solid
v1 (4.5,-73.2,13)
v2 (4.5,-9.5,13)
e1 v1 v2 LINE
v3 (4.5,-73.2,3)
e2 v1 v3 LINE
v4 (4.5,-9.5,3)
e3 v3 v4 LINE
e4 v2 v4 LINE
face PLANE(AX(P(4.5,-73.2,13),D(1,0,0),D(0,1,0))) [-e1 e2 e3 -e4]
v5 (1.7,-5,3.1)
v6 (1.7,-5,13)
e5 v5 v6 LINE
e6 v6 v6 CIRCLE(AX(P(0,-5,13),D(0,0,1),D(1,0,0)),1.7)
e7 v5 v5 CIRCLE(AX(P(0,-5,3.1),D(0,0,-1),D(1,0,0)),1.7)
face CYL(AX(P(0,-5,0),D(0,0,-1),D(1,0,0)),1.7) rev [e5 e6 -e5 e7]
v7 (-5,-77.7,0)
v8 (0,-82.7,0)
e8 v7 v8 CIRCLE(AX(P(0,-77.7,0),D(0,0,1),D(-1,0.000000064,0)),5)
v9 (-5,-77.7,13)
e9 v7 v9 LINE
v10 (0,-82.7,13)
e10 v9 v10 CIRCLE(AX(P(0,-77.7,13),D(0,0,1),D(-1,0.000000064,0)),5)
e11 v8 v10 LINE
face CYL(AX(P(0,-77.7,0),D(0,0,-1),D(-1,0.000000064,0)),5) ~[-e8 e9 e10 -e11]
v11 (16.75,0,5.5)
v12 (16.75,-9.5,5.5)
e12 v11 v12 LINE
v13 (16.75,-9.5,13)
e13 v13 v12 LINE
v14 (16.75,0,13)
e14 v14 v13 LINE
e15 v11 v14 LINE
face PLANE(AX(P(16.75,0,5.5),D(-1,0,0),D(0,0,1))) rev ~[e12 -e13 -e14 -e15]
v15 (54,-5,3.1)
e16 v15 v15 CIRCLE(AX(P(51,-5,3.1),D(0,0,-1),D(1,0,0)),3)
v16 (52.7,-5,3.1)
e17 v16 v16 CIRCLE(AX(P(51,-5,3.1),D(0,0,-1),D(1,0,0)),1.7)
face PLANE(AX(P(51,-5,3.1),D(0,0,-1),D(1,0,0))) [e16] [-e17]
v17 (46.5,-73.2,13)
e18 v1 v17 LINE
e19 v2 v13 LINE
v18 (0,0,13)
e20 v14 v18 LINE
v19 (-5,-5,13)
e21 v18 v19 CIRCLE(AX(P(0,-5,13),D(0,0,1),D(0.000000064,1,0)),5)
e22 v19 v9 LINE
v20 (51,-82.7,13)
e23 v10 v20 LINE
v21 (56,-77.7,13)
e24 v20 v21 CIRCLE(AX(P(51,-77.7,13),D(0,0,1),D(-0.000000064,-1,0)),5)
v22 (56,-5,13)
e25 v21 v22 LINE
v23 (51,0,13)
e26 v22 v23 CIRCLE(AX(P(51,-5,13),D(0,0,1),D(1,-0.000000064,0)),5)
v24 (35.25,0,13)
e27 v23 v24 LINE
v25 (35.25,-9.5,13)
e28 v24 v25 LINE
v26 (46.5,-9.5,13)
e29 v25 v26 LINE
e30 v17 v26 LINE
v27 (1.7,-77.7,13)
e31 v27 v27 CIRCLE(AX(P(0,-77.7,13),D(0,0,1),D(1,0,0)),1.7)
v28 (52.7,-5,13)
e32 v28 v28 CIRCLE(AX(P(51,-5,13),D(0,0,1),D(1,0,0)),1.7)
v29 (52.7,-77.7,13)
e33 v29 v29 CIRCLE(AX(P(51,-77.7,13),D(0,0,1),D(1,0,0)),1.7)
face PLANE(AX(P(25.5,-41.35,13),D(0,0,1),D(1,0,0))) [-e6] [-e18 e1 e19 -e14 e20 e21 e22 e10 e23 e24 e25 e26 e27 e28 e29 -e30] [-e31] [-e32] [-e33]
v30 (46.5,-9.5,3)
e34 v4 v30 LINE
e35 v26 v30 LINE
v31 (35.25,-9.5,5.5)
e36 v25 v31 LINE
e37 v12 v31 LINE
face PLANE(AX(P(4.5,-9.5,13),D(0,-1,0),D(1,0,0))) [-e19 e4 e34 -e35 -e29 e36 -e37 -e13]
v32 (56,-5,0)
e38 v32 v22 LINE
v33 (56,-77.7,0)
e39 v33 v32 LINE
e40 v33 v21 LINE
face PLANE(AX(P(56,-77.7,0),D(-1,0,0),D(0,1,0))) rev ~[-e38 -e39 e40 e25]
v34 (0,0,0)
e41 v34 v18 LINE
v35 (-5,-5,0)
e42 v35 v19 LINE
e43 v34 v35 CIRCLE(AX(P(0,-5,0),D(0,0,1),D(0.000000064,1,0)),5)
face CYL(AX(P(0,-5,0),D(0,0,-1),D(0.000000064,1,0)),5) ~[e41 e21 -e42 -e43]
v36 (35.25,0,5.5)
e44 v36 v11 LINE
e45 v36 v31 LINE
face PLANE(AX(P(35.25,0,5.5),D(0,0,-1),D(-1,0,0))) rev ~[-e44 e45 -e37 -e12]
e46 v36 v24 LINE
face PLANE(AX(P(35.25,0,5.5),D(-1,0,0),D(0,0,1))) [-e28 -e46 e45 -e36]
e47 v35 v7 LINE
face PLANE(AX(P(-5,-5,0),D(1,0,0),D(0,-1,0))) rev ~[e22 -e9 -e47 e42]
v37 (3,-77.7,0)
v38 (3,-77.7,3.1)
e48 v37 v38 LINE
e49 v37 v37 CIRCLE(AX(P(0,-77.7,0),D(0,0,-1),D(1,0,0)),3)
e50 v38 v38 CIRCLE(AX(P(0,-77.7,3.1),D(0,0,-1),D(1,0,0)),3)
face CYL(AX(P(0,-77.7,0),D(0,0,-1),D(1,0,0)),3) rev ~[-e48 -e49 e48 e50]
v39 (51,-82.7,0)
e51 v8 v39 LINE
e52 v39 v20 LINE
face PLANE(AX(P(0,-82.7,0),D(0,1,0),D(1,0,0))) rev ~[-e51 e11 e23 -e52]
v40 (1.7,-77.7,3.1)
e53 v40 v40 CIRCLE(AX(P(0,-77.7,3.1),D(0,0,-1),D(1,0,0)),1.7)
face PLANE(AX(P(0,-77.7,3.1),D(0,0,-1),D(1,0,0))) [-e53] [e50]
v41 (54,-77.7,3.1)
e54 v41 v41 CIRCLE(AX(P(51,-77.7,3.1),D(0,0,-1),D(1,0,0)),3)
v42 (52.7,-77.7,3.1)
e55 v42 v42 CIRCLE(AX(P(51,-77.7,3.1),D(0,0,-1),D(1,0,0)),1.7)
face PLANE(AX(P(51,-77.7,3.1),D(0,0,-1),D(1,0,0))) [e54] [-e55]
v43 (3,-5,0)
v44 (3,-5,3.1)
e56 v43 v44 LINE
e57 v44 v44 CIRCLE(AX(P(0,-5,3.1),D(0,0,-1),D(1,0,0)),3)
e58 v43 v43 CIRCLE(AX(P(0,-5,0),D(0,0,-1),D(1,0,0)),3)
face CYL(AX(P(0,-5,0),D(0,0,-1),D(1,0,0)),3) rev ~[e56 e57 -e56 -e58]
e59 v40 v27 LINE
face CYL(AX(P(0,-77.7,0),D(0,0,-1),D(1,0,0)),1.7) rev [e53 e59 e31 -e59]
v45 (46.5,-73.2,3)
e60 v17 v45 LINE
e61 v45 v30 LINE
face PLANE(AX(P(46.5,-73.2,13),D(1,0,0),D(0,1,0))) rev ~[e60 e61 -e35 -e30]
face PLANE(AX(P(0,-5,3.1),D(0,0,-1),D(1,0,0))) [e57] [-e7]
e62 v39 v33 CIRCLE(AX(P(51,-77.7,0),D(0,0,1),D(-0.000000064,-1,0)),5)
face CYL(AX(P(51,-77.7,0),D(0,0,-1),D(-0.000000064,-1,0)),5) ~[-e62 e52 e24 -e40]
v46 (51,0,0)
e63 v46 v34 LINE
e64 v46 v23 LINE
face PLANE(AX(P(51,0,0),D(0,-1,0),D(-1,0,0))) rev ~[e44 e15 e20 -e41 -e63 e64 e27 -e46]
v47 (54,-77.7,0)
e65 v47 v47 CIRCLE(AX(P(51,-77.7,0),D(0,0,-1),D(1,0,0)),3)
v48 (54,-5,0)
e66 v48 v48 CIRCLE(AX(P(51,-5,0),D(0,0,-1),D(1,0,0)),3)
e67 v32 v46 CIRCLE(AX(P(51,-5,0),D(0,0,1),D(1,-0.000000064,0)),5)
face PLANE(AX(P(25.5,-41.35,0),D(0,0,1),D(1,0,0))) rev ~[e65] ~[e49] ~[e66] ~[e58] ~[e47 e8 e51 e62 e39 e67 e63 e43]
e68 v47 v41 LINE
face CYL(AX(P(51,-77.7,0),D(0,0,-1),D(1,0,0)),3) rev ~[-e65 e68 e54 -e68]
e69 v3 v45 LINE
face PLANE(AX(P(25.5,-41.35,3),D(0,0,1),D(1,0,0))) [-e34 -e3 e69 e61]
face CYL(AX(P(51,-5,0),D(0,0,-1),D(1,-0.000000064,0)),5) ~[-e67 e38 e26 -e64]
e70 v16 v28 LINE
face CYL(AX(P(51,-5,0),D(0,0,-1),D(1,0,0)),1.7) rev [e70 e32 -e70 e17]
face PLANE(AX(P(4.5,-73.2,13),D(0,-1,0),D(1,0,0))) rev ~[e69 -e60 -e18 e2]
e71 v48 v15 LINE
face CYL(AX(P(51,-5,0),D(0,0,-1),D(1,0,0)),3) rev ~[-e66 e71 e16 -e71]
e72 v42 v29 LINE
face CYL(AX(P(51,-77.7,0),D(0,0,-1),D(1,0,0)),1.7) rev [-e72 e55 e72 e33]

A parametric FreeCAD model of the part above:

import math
import FreeCAD as App
import Part
import Sketcher
from FreeCAD import Vector

doc = App.newDocument("Part")
params = doc.addObject("Spreadsheet::Sheet", "Params")
for row, (alias, value) in enumerate([
    ("sketch1_radius", "5 mm"),
    ("sketch1_diameter", "3.4 mm"),
    ("sketch1_width", "51 mm"),
    ("sketch1_height", "72.7 mm"),
    ("pad1_length", "13 mm"),
    ("sketch2_width", "42 mm"),
    ("sketch2_height", "63.7 mm"),
    ("pocket1_length", "10 mm"),
    ("sketch3_width", "18.5 mm"),
    ("sketch3_height", "7.5 mm"),
    ("pocket2_length", "11 mm"),
    ("sketch4_diameter", "6 mm"),
    ("pocket3_length", "3.1 mm"),
], start=1):
    params.set(f"A{row}", alias)
    params.set(f"B{row}", "=" + value)
    params.setAlias(f"B{row}", alias)

body = doc.addObject("PartDesign::Body", "Body")

# Sketch on XY plane
sketch1 = body.newObject("Sketcher::SketchObject", "Sketch")
sketch1.AttachmentSupport = (doc.getObject("XY_Plane"), [""])
sketch1.MapMode = "FlatFace"
sketch1.addGeometry(Part.LineSegment(Vector(-5, -5, 0), Vector(-5, -77.7, 0)), False)
sketch1.addGeometry(Part.ArcOfCircle(Part.Circle(Vector(0, -77.7, 0), Vector(0, 0, 1), 5), math.radians(180), math.radians(270)), False)
sketch1.addGeometry(Part.LineSegment(Vector(0, -82.7, 0), Vector(51, -82.7, 0)), False)
sketch1.addGeometry(Part.ArcOfCircle(Part.Circle(Vector(51, -77.7, 0), Vector(0, 0, 1), 5), math.radians(-90), math.radians(0)), False)
sketch1.addGeometry(Part.LineSegment(Vector(56, -77.7, 0), Vector(56, -5, 0)), False)
sketch1.addGeometry(Part.ArcOfCircle(Part.Circle(Vector(51, -5, 0), Vector(0, 0, 1), 5), math.radians(0), math.radians(90)), False)
sketch1.addGeometry(Part.LineSegment(Vector(51, 0, 0), Vector(0, 0, 0)), False)
sketch1.addGeometry(Part.ArcOfCircle(Part.Circle(Vector(0, -5, 0), Vector(0, 0, 1), 5), math.radians(90), math.radians(180)), False)
sketch1.addGeometry(Part.Circle(Vector(0, -77.7, 0), Vector(0, 0, 1), 1.7), False)
sketch1.addGeometry(Part.Circle(Vector(51, -77.7, 0), Vector(0, 0, 1), 1.7), False)
sketch1.addGeometry(Part.Circle(Vector(0, -5, 0), Vector(0, 0, 1), 1.7), False)
sketch1.addGeometry(Part.Circle(Vector(51, -5, 0), Vector(0, 0, 1), 1.7), False)
sketch1.addConstraint(Sketcher.Constraint("Tangent", 0, 2, 1, 1))
sketch1.addConstraint(Sketcher.Constraint("Tangent", 1, 2, 2, 1))
sketch1.addConstraint(Sketcher.Constraint("Tangent", 2, 2, 3, 1))
sketch1.addConstraint(Sketcher.Constraint("Tangent", 3, 2, 4, 1))
sketch1.addConstraint(Sketcher.Constraint("Tangent", 4, 2, 5, 1))
sketch1.addConstraint(Sketcher.Constraint("Tangent", 5, 2, 6, 1))
sketch1.addConstraint(Sketcher.Constraint("Tangent", 6, 2, 7, 1))
sketch1.addConstraint(Sketcher.Constraint("Tangent", 7, 2, 0, 1))
sketch1.addConstraint(Sketcher.Constraint("Vertical", 0))
sketch1.addConstraint(Sketcher.Constraint("Horizontal", 2))
sketch1.addConstraint(Sketcher.Constraint("Vertical", 4))
sketch1.addConstraint(Sketcher.Constraint("Horizontal", 6))
sketch1.addConstraint(Sketcher.Constraint("Coincident", 6, 2, -1, 1))
sketch1.addConstraint(Sketcher.Constraint("Coincident", 8, 3, 1, 3))
sketch1.addConstraint(Sketcher.Constraint("Coincident", 9, 3, 3, 3))
sketch1.addConstraint(Sketcher.Constraint("Coincident", 10, 3, 7, 3))
sketch1.addConstraint(Sketcher.Constraint("Coincident", 11, 3, 5, 3))
sketch1.addConstraint(Sketcher.Constraint("Equal", 1, 3))
sketch1.addConstraint(Sketcher.Constraint("Equal", 3, 5))
sketch1.addConstraint(Sketcher.Constraint("Equal", 5, 7))
sketch1.addConstraint(Sketcher.Constraint("Equal", 8, 9))
sketch1.addConstraint(Sketcher.Constraint("Equal", 9, 10))
sketch1.addConstraint(Sketcher.Constraint("Equal", 10, 11))
sketch1.addConstraint(Sketcher.Constraint("Radius", 1, 5.0))
sketch1.addConstraint(Sketcher.Constraint("Diameter", 8, 3.4))
sketch1.addConstraint(Sketcher.Constraint("DistanceX", 2, 1, 2, 2, 51.0))
sketch1.addConstraint(Sketcher.Constraint("DistanceY", 0, 2, 0, 1, 72.7))
sketch1.setExpression("Constraints[23]", "Params.sketch1_radius")
sketch1.setExpression("Constraints[24]", "Params.sketch1_diameter")
sketch1.setExpression("Constraints[25]", "Params.sketch1_width")
sketch1.setExpression("Constraints[26]", "Params.sketch1_height")
pad1 = body.newObject("PartDesign::Pad", "Pad")
pad1.Profile = sketch1
pad1.setExpression("Length", "Params.pad1_length")

# Sketch on XY plane
sketch2 = body.newObject("Sketcher::SketchObject", "Sketch001")
sketch2.AttachmentSupport = (doc.getObject("XY_Plane"), [""])
sketch2.MapMode = "FlatFace"
sketch2.AttachmentOffset = App.Placement(Vector(0, 0, 13), App.Rotation())
sketch2.addGeometry(Part.LineSegment(Vector(4, -10, 0), Vector(4, -73, 0)), False)
sketch2.addGeometry(Part.LineSegment(Vector(4, -73, 0), Vector(46, -73, 0)), False)
sketch2.addGeometry(Part.LineSegment(Vector(46, -73, 0), Vector(46, -10, 0)), False)
sketch2.addGeometry(Part.LineSegment(Vector(46, -10, 0), Vector(4, -10, 0)), False)
sketch2.addConstraint(Sketcher.Constraint("Coincident", 0, 2, 1, 1))
sketch2.addConstraint(Sketcher.Constraint("Coincident", 1, 2, 2, 1))
sketch2.addConstraint(Sketcher.Constraint("Coincident", 2, 2, 3, 1))
sketch2.addConstraint(Sketcher.Constraint("Coincident", 3, 2, 0, 1))
sketch2.addConstraint(Sketcher.Constraint("Vertical", 0))
sketch2.addConstraint(Sketcher.Constraint("Horizontal", 1))
sketch2.addConstraint(Sketcher.Constraint("Vertical", 2))
sketch2.addConstraint(Sketcher.Constraint("Horizontal", 3))
sketch2.addConstraint(Sketcher.Constraint("DistanceX", 1, 1, 1, 2, 42.0))
sketch2.addConstraint(Sketcher.Constraint("DistanceY", 0, 2, 0, 1, 63.7))
sketch2.addConstraint(Sketcher.Constraint("DistanceX", -1, 1, 0, 2, 4.5))
sketch2.addConstraint(Sketcher.Constraint("DistanceY", 0, 2, -1, 1, 73.2))
sketch2.setExpression("Constraints[8]", "Params.sketch2_width")
sketch2.setExpression("Constraints[9]", "Params.sketch2_height")
pocket1 = body.newObject("PartDesign::Pocket", "Pocket")
pocket1.Profile = sketch2
pocket1.setExpression("Length", "Params.pocket1_length")

# Sketch on XZ plane
sketch3 = body.newObject("Sketcher::SketchObject", "Sketch002")
sketch3.AttachmentSupport = (doc.getObject("XZ_Plane"), [""])
sketch3.MapMode = "FlatFace"
sketch3.addGeometry(Part.LineSegment(Vector(35, 13, 0), Vector(35, 6, 0)), False)
sketch3.addGeometry(Part.LineSegment(Vector(35, 6, 0), Vector(17, 6, 0)), False)
sketch3.addGeometry(Part.LineSegment(Vector(17, 6, 0), Vector(17, 13, 0)), False)
sketch3.addGeometry(Part.LineSegment(Vector(17, 13, 0), Vector(35, 13, 0)), False)
sketch3.addConstraint(Sketcher.Constraint("Coincident", 0, 2, 1, 1))
sketch3.addConstraint(Sketcher.Constraint("Coincident", 1, 2, 2, 1))
sketch3.addConstraint(Sketcher.Constraint("Coincident", 2, 2, 3, 1))
sketch3.addConstraint(Sketcher.Constraint("Coincident", 3, 2, 0, 1))
sketch3.addConstraint(Sketcher.Constraint("Vertical", 0))
sketch3.addConstraint(Sketcher.Constraint("Horizontal", 1))
sketch3.addConstraint(Sketcher.Constraint("Vertical", 2))
sketch3.addConstraint(Sketcher.Constraint("Horizontal", 3))
sketch3.addConstraint(Sketcher.Constraint("DistanceX", 1, 2, 1, 1, 18.5))
sketch3.addConstraint(Sketcher.Constraint("DistanceY", 0, 2, 0, 1, 7.5))
sketch3.addConstraint(Sketcher.Constraint("DistanceY", -1, 1, 2, 2, 13.0))
sketch3.addConstraint(Sketcher.Constraint("DistanceX", -1, 1, 0, 2, 35.25))
sketch3.setExpression("Constraints[8]", "Params.sketch3_width")
sketch3.setExpression("Constraints[9]", "Params.sketch3_height")
pocket2 = body.newObject("PartDesign::Pocket", "Pocket001")
pocket2.Profile = sketch3
pocket2.setExpression("Length", "Params.pocket2_length")
pocket2.Reversed = True

# Sketch on XY plane
sketch4 = body.newObject("Sketcher::SketchObject", "Sketch003")
sketch4.AttachmentSupport = (doc.getObject("XY_Plane"), [""])
sketch4.MapMode = "FlatFace"
sketch4.addGeometry(Part.Circle(Vector(0, -5, 0), Vector(0, 0, 1), 3), False)
sketch4.addGeometry(Part.Circle(Vector(51, -5, 0), Vector(0, 0, 1), 3), False)
sketch4.addGeometry(Part.Circle(Vector(51, -77.7, 0), Vector(0, 0, 1), 3), False)
sketch4.addGeometry(Part.Circle(Vector(0, -77.7, 0), Vector(0, 0, 1), 3), False)
sketch4.addConstraint(Sketcher.Constraint("Equal", 0, 1))
sketch4.addConstraint(Sketcher.Constraint("Equal", 1, 2))
sketch4.addConstraint(Sketcher.Constraint("Equal", 2, 3))
sketch4.addConstraint(Sketcher.Constraint("PointOnObject", 0, 3, -2))
sketch4.addConstraint(Sketcher.Constraint("PointOnObject", 3, 3, -2))
sketch4.addConstraint(Sketcher.Constraint("Horizontal", 0, 3, 1, 3))
sketch4.addConstraint(Sketcher.Constraint("Horizontal", 2, 3, 3, 3))
sketch4.addConstraint(Sketcher.Constraint("Vertical", 1, 3, 2, 3))
sketch4.addConstraint(Sketcher.Constraint("Diameter", 0, 6.0))
sketch4.addConstraint(Sketcher.Constraint("DistanceY", 0, 3, -1, 1, 5.0))
sketch4.addConstraint(Sketcher.Constraint("DistanceX", -1, 1, 1, 3, 51.0))
sketch4.addConstraint(Sketcher.Constraint("DistanceY", 2, 3, -1, 1, 77.7))
sketch4.setExpression("Constraints[8]", "Params.sketch4_diameter")
pocket3 = body.newObject("PartDesign::Pocket", "Pocket002")
pocket3.Profile = sketch4
pocket3.setExpression("Length", "Params.pocket3_length")
pocket3.Reversed = True

doc.recompute()
